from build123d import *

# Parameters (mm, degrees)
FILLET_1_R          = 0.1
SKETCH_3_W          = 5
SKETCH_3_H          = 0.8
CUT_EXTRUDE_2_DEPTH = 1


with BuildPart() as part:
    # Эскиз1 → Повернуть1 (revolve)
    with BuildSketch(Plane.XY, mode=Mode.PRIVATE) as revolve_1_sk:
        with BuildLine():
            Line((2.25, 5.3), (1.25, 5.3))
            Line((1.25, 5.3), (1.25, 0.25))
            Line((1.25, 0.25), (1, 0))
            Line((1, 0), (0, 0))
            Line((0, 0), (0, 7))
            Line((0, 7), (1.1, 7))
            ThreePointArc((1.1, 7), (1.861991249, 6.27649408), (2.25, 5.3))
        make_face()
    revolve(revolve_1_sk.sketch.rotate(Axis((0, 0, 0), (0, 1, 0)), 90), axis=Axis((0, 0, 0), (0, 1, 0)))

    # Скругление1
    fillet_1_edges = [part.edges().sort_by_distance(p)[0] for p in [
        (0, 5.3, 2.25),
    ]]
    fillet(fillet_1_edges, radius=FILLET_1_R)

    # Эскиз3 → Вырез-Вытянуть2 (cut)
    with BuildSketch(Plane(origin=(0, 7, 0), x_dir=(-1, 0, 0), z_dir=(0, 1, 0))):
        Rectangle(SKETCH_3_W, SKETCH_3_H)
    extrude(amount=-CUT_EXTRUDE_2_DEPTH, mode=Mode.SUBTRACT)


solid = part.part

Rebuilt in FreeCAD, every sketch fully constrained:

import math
import FreeCAD as App
import Part
import Sketcher
from FreeCAD import Vector
Q = App.Units.Quantity


def edges_at(feature, points):
    """Names of the edges that pass closest to the given points."""
    edges = feature.Shape.Edges
    near = lambda p: min(range(len(edges)), key=lambda i: edges[i].distToShape(Part.Vertex(*p))[0])
    return sorted({f"Edge{near(p) + 1}" for p in points})

doc = App.newDocument("Part")
params = doc.addObject("Spreadsheet::Sheet", "Params")
for row, (alias, value) in enumerate([
    ("sketch1_width", "1 mm"),
    ("sketch1_height", "7 mm"),
    ("sketch1_width2", "1.1 mm"),
    ("sketch1_height2", "5.05 mm"),
    ("revolution_angle", "360 deg"),
    ("fillet_radius", "0.1 mm"),
    ("sketch2_width", "5 mm"),
    ("sketch2_height", "0.8 mm"),
    ("pocket1_length", "1 mm"),
], start=1):
    params.set(f"A{row}", alias)
    params.set(f"B{row}", "=" + value)
    params.setAlias(f"B{row}", alias)

body = doc.addObject("PartDesign::Body", "Body")

# Sketch on XY plane
sketch1 = doc.addObject("Sketcher::SketchObject", "Sketch")
body.addObject(sketch1)
sketch1.AttachmentSupport = (doc.XY_Plane, [""])
sketch1.MapMode = "FlatFace"
sketch1.addGeometry(Part.LineSegment(Vector(1.25, 5.3, 0), Vector(2.25, 5.3, 0)), False)
sketch1.addGeometry(Part.ArcOfCircle(Part.Circle(Vector(-0.16, 4.91, 0), Vector(0, 0, 1), 2.45), math.radians(9), math.radians(59)), False)
sketch1.addGeometry(Part.LineSegment(Vector(1.1, 7, 0), Vector(0, 7, 0)), False)
sketch1.addGeometry(Part.LineSegment(Vector(0, 7, 0), Vector(0, 0, 0)), False)
sketch1.addGeometry(Part.LineSegment(Vector(0, 0, 0), Vector(1, 0, 0)), False)
sketch1.addGeometry(Part.LineSegment(Vector(1, 0, 0), Vector(1.25, 0.25, 0)), False)
sketch1.addGeometry(Part.LineSegment(Vector(1.25, 0.25, 0), Vector(1.25, 5.3, 0)), False)
sketch1.addConstraint(Sketcher.Constraint("Coincident", 0, 2, 1, 1))
sketch1.addConstraint(Sketcher.Constraint("Coincident", 1, 2, 2, 1))
sketch1.addConstraint(Sketcher.Constraint("Coincident", 2, 2, 3, 1))
sketch1.addConstraint(Sketcher.Constraint("Coincident", 3, 2, 4, 1))
sketch1.addConstraint(Sketcher.Constraint("Coincident", 4, 2, 5, 1))
sketch1.addConstraint(Sketcher.Constraint("Coincident", 5, 2, 6, 1))
sketch1.addConstraint(Sketcher.Constraint("Coincident", 6, 2, 0, 1))
sketch1.addConstraint(Sketcher.Constraint("Horizontal", 0))
sketch1.addConstraint(Sketcher.Constraint("Horizontal", 2))
sketch1.addConstraint(Sketcher.Constraint("Vertical", 3))
sketch1.addConstraint(Sketcher.Constraint("Horizontal", 4))
sketch1.addConstraint(Sketcher.Constraint("Vertical", 6))
sketch1.addConstraint(Sketcher.Constraint("Coincident", 3, 2, -1, 1))
sketch1.addConstraint(Sketcher.Constraint("Equal", 0, 4))
sketch1.addConstraint(Sketcher.Constraint("DistanceX", 0, 1, 0, 2, 1.0))
sketch1.addConstraint(Sketcher.Constraint("DistanceY", 3, 2, 3, 1, 7.0))
sketch1.addConstraint(Sketcher.Constraint("Angle", 5, Q("45 deg")))
sketch1.addConstraint(Sketcher.Constraint("DistanceX", 2, 2, 2, 1, 1.1))
sketch1.addConstraint(Sketcher.Constraint("DistanceY", 6, 1, 6, 2, 5.05))
sketch1.addConstraint(Sketcher.Constraint("DistanceY", -1, 1, 0, 2, 5.3))
sketch1.addConstraint(Sketcher.Constraint("Radius", 1, 2.445303))
sketch1.setExpression("Constraints[14]", "Params.sketch1_width")
sketch1.setExpression("Constraints[15]", "Params.sketch1_height")
sketch1.setExpression("Constraints[17]", "Params.sketch1_width2")
sketch1.setExpression("Constraints[18]", "Params.sketch1_height2")
revolution = doc.addObject("PartDesign::Revolution", "Revolution")
body.addObject(revolution)
revolution.Profile = sketch1
revolution.ReferenceAxis = (sketch1, ["V_Axis"])
revolution.setExpression("Angle", "Params.revolution_angle")
doc.recompute()

fillet = doc.addObject("PartDesign::Fillet", "Fillet")
body.addObject(fillet)
fillet.Base = (revolution, edges_at(revolution, [(0, 5.3, 2.25)]))
fillet.setExpression("Radius", "Params.fillet_radius")

# Sketch on XZ plane
sketch2 = doc.addObject("Sketcher::SketchObject", "Sketch001")
body.addObject(sketch2)
sketch2.AttachmentSupport = (doc.XZ_Plane, [""])
sketch2.MapMode = "FlatFace"
sketch2.AttachmentOffset = App.Placement(Vector(0, 0, -7), App.Rotation())
sketch2.addGeometry(Part.LineSegment(Vector(2.5, 0.4, 0), Vector(2.5, -0.4, 0)), False)
sketch2.addGeometry(Part.LineSegment(Vector(2.5, -0.4, 0), Vector(-2.5, -0.4, 0)), False)
sketch2.addGeometry(Part.LineSegment(Vector(-2.5, -0.4, 0), Vector(-2.5, 0.4, 0)), False)
sketch2.addGeometry(Part.LineSegment(Vector(-2.5, 0.4, 0), Vector(2.5, 0.4, 0)), False)
sketch2.addConstraint(Sketcher.Constraint("Coincident", 0, 2, 1, 1))
sketch2.addConstraint(Sketcher.Constraint("Coincident", 1, 2, 2, 1))
sketch2.addConstraint(Sketcher.Constraint("Coincident", 2, 2, 3, 1))
sketch2.addConstraint(Sketcher.Constraint("Coincident", 3, 2, 0, 1))
sketch2.addConstraint(Sketcher.Constraint("Vertical", 0))
sketch2.addConstraint(Sketcher.Constraint("Horizontal", 1))
sketch2.addConstraint(Sketcher.Constraint("Vertical", 2))
sketch2.addConstraint(Sketcher.Constraint("Horizontal", 3))
sketch2.addConstraint(Sketcher.Constraint("Symmetric", 0, 2, 2, 2, -1, 1))
sketch2.addConstraint(Sketcher.Constraint("DistanceX", 1, 2, 1, 1, 5.0))
sketch2.addConstraint(Sketcher.Constraint("DistanceY", 0, 2, 0, 1, 0.8))
sketch2.setExpression("Constraints[9]", "Params.sketch2_width")
sketch2.setExpression("Constraints[10]", "Params.sketch2_height")
pocket1 = doc.addObject("PartDesign::Pocket", "Pocket")
body.addObject(pocket1)
pocket1.Profile = sketch2
pocket1.setExpression("Length", "Params.pocket1_length")
pocket1.Reversed = True

doc.recompute()
